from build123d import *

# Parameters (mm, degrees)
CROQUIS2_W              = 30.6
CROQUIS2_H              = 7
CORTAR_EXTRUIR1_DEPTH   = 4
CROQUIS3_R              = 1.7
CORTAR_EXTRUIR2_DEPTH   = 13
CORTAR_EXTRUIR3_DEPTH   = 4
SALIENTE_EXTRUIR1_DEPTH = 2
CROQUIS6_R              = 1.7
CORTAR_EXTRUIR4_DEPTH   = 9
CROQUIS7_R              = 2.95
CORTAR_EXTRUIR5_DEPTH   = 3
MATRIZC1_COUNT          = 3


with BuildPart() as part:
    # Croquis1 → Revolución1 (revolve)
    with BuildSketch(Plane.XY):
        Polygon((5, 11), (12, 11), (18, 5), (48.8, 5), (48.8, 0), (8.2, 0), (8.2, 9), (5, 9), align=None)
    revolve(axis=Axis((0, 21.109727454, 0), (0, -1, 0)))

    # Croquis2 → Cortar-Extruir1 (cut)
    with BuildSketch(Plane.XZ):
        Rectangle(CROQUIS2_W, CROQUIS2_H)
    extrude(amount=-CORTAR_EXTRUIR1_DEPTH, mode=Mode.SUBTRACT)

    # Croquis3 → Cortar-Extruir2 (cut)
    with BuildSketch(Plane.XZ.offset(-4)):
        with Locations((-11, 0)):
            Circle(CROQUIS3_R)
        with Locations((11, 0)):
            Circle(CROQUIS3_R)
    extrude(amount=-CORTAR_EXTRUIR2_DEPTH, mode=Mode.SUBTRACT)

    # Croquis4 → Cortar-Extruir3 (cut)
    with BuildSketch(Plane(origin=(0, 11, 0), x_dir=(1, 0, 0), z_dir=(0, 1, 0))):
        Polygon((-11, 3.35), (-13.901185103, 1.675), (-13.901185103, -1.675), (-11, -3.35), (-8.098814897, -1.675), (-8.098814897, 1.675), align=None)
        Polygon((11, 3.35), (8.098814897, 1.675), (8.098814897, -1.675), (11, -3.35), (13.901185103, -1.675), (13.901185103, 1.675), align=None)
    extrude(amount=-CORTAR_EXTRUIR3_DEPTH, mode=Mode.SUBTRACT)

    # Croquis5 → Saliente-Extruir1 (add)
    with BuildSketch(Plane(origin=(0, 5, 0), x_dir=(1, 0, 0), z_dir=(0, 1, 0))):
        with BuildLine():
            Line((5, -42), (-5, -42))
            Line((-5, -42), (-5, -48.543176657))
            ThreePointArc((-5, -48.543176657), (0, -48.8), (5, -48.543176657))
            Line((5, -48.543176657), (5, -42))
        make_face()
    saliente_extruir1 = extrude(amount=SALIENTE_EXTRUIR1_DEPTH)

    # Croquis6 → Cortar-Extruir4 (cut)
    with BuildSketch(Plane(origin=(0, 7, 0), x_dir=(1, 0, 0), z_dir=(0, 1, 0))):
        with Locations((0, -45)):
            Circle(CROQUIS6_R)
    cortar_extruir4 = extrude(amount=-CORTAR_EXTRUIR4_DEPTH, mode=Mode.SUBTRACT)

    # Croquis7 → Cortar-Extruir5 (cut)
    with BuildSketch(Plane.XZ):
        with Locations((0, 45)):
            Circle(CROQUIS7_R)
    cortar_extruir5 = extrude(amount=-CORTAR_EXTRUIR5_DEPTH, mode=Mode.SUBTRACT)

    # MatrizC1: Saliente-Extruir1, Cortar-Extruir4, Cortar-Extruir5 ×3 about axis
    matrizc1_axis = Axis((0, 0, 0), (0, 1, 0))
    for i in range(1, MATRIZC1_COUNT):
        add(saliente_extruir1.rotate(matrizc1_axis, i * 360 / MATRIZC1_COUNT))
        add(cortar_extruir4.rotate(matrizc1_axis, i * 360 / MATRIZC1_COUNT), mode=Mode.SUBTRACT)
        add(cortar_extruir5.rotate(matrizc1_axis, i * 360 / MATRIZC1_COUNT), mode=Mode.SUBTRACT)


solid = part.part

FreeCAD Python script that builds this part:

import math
import FreeCAD as App
import Part
import Sketcher
from FreeCAD import Vector
Q = App.Units.Quantity

doc = App.newDocument("Part")
body = doc.addObject("PartDesign::Body", "Body")

# Sketch on XY plane
sketch1 = doc.addObject("Sketcher::SketchObject", "Sketch")
body.addObject(sketch1)
sketch1.AttachmentSupport = (doc.XY_Plane, [""])
sketch1.MapMode = "FlatFace"
sketch1.addGeometry(Part.LineSegment(Vector(12, 11, 0), Vector(5, 11, 0)), False)
sketch1.addGeometry(Part.LineSegment(Vector(5, 11, 0), Vector(5, 9, 0)), False)
sketch1.addGeometry(Part.LineSegment(Vector(5, 9, 0), Vector(8.2, 9, 0)), False)
sketch1.addGeometry(Part.LineSegment(Vector(8.2, 9, 0), Vector(8.2, 0, 0)), False)
sketch1.addGeometry(Part.LineSegment(Vector(8.2, 0, 0), Vector(48.8, 0, 0)), False)
sketch1.addGeometry(Part.LineSegment(Vector(48.8, 0, 0), Vector(48.8, 5, 0)), False)
sketch1.addGeometry(Part.LineSegment(Vector(48.8, 5, 0), Vector(18, 5, 0)), False)
sketch1.addGeometry(Part.LineSegment(Vector(18, 5, 0), Vector(12, 11, 0)), False)
sketch1.addConstraint(Sketcher.Constraint("Coincident", 0, 2, 1, 1))
sketch1.addConstraint(Sketcher.Constraint("Coincident", 1, 2, 2, 1))
sketch1.addConstraint(Sketcher.Constraint("Coincident", 2, 2, 3, 1))
sketch1.addConstraint(Sketcher.Constraint("Coincident", 3, 2, 4, 1))
sketch1.addConstraint(Sketcher.Constraint("Coincident", 4, 2, 5, 1))
sketch1.addConstraint(Sketcher.Constraint("Coincident", 5, 2, 6, 1))
sketch1.addConstraint(Sketcher.Constraint("Coincident", 6, 2, 7, 1))
sketch1.addConstraint(Sketcher.Constraint("Coincident", 7, 2, 0, 1))
sketch1.addConstraint(Sketcher.Constraint("Horizontal", 0))
sketch1.addConstraint(Sketcher.Constraint("Vertical", 1))
sketch1.addConstraint(Sketcher.Constraint("Horizontal", 2))
sketch1.addConstraint(Sketcher.Constraint("Vertical", 3))
sketch1.addConstraint(Sketcher.Constraint("Horizontal", 4))
sketch1.addConstraint(Sketcher.Constraint("Vertical", 5))
sketch1.addConstraint(Sketcher.Constraint("Horizontal", 6))
sketch1.addConstraint(Sketcher.Constraint("PointOnObject", 3, 2, -1))
sketch1.addConstraint(Sketcher.Constraint("DistanceX", 0, 2, 0, 1, Q("7 mm")))
sketch1.addConstraint(Sketcher.Constraint("DistanceY", 1, 2, 1, 1, Q("2 mm")))
sketch1.addConstraint(Sketcher.Constraint("DistanceY", 3, 2, 3, 1, Q("9 mm")))
sketch1.addConstraint(Sketcher.Constraint("DistanceY", 5, 1, 5, 2, Q("5 mm")))
sketch1.addConstraint(Sketcher.Constraint("Angle", 7, Q("135 deg")))
sketch1.addConstraint(Sketcher.Constraint("DistanceX", 2, 1, 2, 2, Q("3.2 mm")))
sketch1.addConstraint(Sketcher.Constraint("DistanceX", 4, 1, 4, 2, Q("40.6 mm")))
sketch1.addConstraint(Sketcher.Constraint("DistanceX", -1, 1, 0, 2, Q("5 mm")))
revolution = doc.addObject("PartDesign::Revolution", "Revolution")
body.addObject(revolution)
revolution.Profile = sketch1
revolution.ReferenceAxis = (sketch1, ["V_Axis"])
revolution.Angle = 360

# Sketch on XZ plane
sketch2 = doc.addObject("Sketcher::SketchObject", "Sketch001")
body.addObject(sketch2)
sketch2.AttachmentSupport = (doc.XZ_Plane, [""])
sketch2.MapMode = "FlatFace"
sketch2.addGeometry(Part.LineSegment(Vector(-15.3, 3.5, 0), Vector(-15.3, -3.5, 0)), False)
sketch2.addGeometry(Part.LineSegment(Vector(-15.3, -3.5, 0), Vector(15.3, -3.5, 0)), False)
sketch2.addGeometry(Part.LineSegment(Vector(15.3, -3.5, 0), Vector(15.3, 3.5, 0)), False)
sketch2.addGeometry(Part.LineSegment(Vector(15.3, 3.5, 0), Vector(-15.3, 3.5, 0)), False)
sketch2.addConstraint(Sketcher.Constraint("Coincident", 0, 2, 1, 1))
sketch2.addConstraint(Sketcher.Constraint("Coincident", 1, 2, 2, 1))
sketch2.addConstraint(Sketcher.Constraint("Coincident", 2, 2, 3, 1))
sketch2.addConstraint(Sketcher.Constraint("Coincident", 3, 2, 0, 1))
sketch2.addConstraint(Sketcher.Constraint("Vertical", 0))
sketch2.addConstraint(Sketcher.Constraint("Horizontal", 1))
sketch2.addConstraint(Sketcher.Constraint("Vertical", 2))
sketch2.addConstraint(Sketcher.Constraint("Horizontal", 3))
sketch2.addConstraint(Sketcher.Constraint("Symmetric", 0, 2, 2, 2, -1, 1))
sketch2.addConstraint(Sketcher.Constraint("DistanceY", 0, 2, 0, 1, Q("7 mm")))
sketch2.addConstraint(Sketcher.Constraint("DistanceX", 1, 1, 1, 2, Q("30.6 mm")))
pocket1 = doc.addObject("PartDesign::Pocket", "Pocket")
body.addObject(pocket1)
pocket1.Profile = sketch2
pocket1.Length = 4

# Sketch on XZ plane
sketch3 = doc.addObject("Sketcher::SketchObject", "Sketch002")
body.addObject(sketch3)
sketch3.AttachmentSupport = (doc.XZ_Plane, [""])
sketch3.MapMode = "FlatFace"
sketch3.AttachmentOffset = App.Placement(Vector(0, 0, -4), App.Rotation())
sketch3.addGeometry(Part.Circle(Vector(-11, 0, 0), Vector(0, 0, 1), 1.7), False)
sketch3.addGeometry(Part.Circle(Vector(11, 0, 0), Vector(0, 0, 1), 1.7), False)
sketch3.addConstraint(Sketcher.Constraint("Equal", 0, 1))
sketch3.addConstraint(Sketcher.Constraint("Symmetric", 0, 3, 1, 3, -1, 1))
sketch3.addConstraint(Sketcher.Constraint("PointOnObject", 0, 3, -1))
sketch3.addConstraint(Sketcher.Constraint("Diameter", 0, Q("3.4 mm")))
sketch3.addConstraint(Sketcher.Constraint("DistanceX", 0, 3, -1, 1, Q("11 mm")))
pocket2 = doc.addObject("PartDesign::Pocket", "Pocket001")
body.addObject(pocket2)
pocket2.Profile = sketch3
pocket2.Length = 13

# Sketch on XZ plane
sketch4 = doc.addObject("Sketcher::SketchObject", "Sketch003")
body.addObject(sketch4)
sketch4.AttachmentSupport = (doc.XZ_Plane, [""])
sketch4.MapMode = "FlatFace"
sketch4.AttachmentOffset = App.Placement(Vector(0, 0, -11), App.Rotation())
sketch4.addGeometry(Part.LineSegment(Vector(-11, -3.35, 0), Vector(-13.901185, -1.675, 0)), False)
sketch4.addGeometry(Part.LineSegment(Vector(-13.901185, -1.675, 0), Vector(-13.901185, 1.675, 0)), False)
sketch4.addGeometry(Part.LineSegment(Vector(-13.901185, 1.675, 0), Vector(-11, 3.35, 0)), False)
sketch4.addGeometry(Part.LineSegment(Vector(-11, 3.35, 0), Vector(-8.098815, 1.675, 0)), False)
sketch4.addGeometry(Part.LineSegment(Vector(-8.098815, 1.675, 0), Vector(-8.098815, -1.675, 0)), False)
sketch4.addGeometry(Part.LineSegment(Vector(-8.098815, -1.675, 0), Vector(-11, -3.35, 0)), False)
sketch4.addGeometry(Part.LineSegment(Vector(11, -3.35, 0), Vector(8.098815, -1.675, 0)), False)
sketch4.addGeometry(Part.LineSegment(Vector(8.098815, -1.675, 0), Vector(8.098815, 1.675, 0)), False)
sketch4.addGeometry(Part.LineSegment(Vector(8.098815, 1.675, 0), Vector(11, 3.35, 0)), False)
sketch4.addGeometry(Part.LineSegment(Vector(11, 3.35, 0), Vector(13.901185, 1.675, 0)), False)
sketch4.addGeometry(Part.LineSegment(Vector(13.901185, 1.675, 0), Vector(13.901185, -1.675, 0)), False)
sketch4.addGeometry(Part.LineSegment(Vector(13.901185, -1.675, 0), Vector(11, -3.35, 0)), False)
sketch4.addConstraint(Sketcher.Constraint("Coincident", 0, 2, 1, 1))
sketch4.addConstraint(Sketcher.Constraint("Coincident", 1, 2, 2, 1))
sketch4.addConstraint(Sketcher.Constraint("Coincident", 2, 2, 3, 1))
sketch4.addConstraint(Sketcher.Constraint("Coincident", 3, 2, 4, 1))
sketch4.addConstraint(Sketcher.Constraint("Coincident", 4, 2, 5, 1))
sketch4.addConstraint(Sketcher.Constraint("Coincident", 5, 2, 0, 1))
sketch4.addConstraint(Sketcher.Constraint("Coincident", 6, 2, 7, 1))
sketch4.addConstraint(Sketcher.Constraint("Coincident", 7, 2, 8, 1))
sketch4.addConstraint(Sketcher.Constraint("Coincident", 8, 2, 9, 1))
sketch4.addConstraint(Sketcher.Constraint("Coincident", 9, 2, 10, 1))
sketch4.addConstraint(Sketcher.Constraint("Coincident", 10, 2, 11, 1))
sketch4.addConstraint(Sketcher.Constraint("Coincident", 11, 2, 6, 1))
sketch4.addConstraint(Sketcher.Constraint("Vertical", 1))
sketch4.addConstraint(Sketcher.Constraint("Vertical", 4))
sketch4.addConstraint(Sketcher.Constraint("Vertical", 7))
sketch4.addConstraint(Sketcher.Constraint("Vertical", 10))
sketch4.addConstraint(Sketcher.Constraint("Symmetric", 3, 2, 6, 2, -1, 1))
sketch4.addConstraint(Sketcher.Constraint("Symmetric", 5, 2, 8, 2, -1, 1))
sketch4.addConstraint(Sketcher.Constraint("Symmetric", 0, 2, 9, 2, -1, 1))
sketch4.addConstraint(Sketcher.Constraint("Symmetric", 2, 2, 11, 2, -1, 1))
sketch4.addConstraint(Sketcher.Constraint("Symmetric", 2, 2, 8, 2, -2))
sketch4.addConstraint(Sketcher.Constraint("Parallel", 0, 3))
sketch4.addConstraint(Sketcher.Constraint("Parallel", 2, 5))
sketch4.addConstraint(Sketcher.Constraint("Parallel", 5, 8))
sketch4.addConstraint(Sketcher.Constraint("Parallel", 8, 11))
sketch4.addConstraint(Sketcher.Constraint("Horizontal", 1, 2, 3, 2))
sketch4.addConstraint(Sketcher.Constraint("Horizontal", 0, 2, 4, 2))
sketch4.addConstraint(Sketcher.Constraint("Angle", 0, Q("150 deg")))
sketch4.addConstraint(Sketcher.Constraint("DistanceX", 2, 2, -1, 1, Q("11 mm")))
sketch4.addConstraint(Sketcher.Constraint("DistanceY", 1, 1, 1, 2, Q("3.35 mm")))
sketch4.addConstraint(Sketcher.Constraint("DistanceY", 5, 2, 2, 2, Q("6.7 mm")))
pocket3 = doc.addObject("PartDesign::Pocket", "Pocket002")
body.addObject(pocket3)
pocket3.Profile = sketch4
pocket3.Length = 4
pocket3.Reversed = True

# Sketch on XZ plane
sketch5 = doc.addObject("Sketcher::SketchObject", "Sketch004")
body.addObject(sketch5)
sketch5.AttachmentSupport = (doc.XZ_Plane, [""])
sketch5.MapMode = "FlatFace"
sketch5.AttachmentOffset = App.Placement(Vector(0, 0, -5), App.Rotation())
sketch5.addGeometry(Part.LineSegment(Vector(5, 42, 0), Vector(-5, 42, 0)), False)
sketch5.addGeometry(Part.LineSegment(Vector(-5, 42, 0), Vector(-5, 48.543177, 0)), False)
sketch5.addGeometry(Part.ArcOfCircle(Part.Circle(Vector(0, 0, 0), Vector(0, 0, 1), 48.8), math.radians(84.119211), math.radians(95.880789)), False)
sketch5.addGeometry(Part.LineSegment(Vector(5, 48.543177, 0), Vector(5, 42, 0)), False)
sketch5.addConstraint(Sketcher.Constraint("Coincident", 0, 2, 1, 1))
sketch5.addConstraint(Sketcher.Constraint("Coincident", 1, 2, 2, 2))
sketch5.addConstraint(Sketcher.Constraint("Coincident", 2, 1, 3, 1))
sketch5.addConstraint(Sketcher.Constraint("Coincident", 3, 2, 0, 1))
sketch5.addConstraint(Sketcher.Constraint("Horizontal", 0))
sketch5.addConstraint(Sketcher.Constraint("Vertical", 1))
sketch5.addConstraint(Sketcher.Constraint("Vertical", 3))
sketch5.addConstraint(Sketcher.Constraint("Coincident", 2, 3, -1, 1))
sketch5.addConstraint(Sketcher.Constraint("Horizontal", 1, 2, 2, 1))
sketch5.addConstraint(Sketcher.Constraint("Radius", 2, Q("48.8 mm")))
sketch5.addConstraint(Sketcher.Constraint("DistanceX", 0, 2, 0, 1, Q("10 mm")))
sketch5.addConstraint(Sketcher.Constraint("DistanceY", -1, 1, 0, 2, Q("42 mm")))
pad1 = doc.addObject("PartDesign::Pad", "Pad")
body.addObject(pad1)
pad1.Profile = sketch5
pad1.Length = 2
pad1.Reversed = True

# Sketch on XZ plane
sketch6 = doc.addObject("Sketcher::SketchObject", "Sketch005")
body.addObject(sketch6)
sketch6.AttachmentSupport = (doc.XZ_Plane, [""])
sketch6.MapMode = "FlatFace"
sketch6.AttachmentOffset = App.Placement(Vector(0, 0, -7), App.Rotation())
sketch6.addGeometry(Part.Circle(Vector(0, 45, 0), Vector(0, 0, 1), 1.7), False)
sketch6.addConstraint(Sketcher.Constraint("PointOnObject", 0, 3, -2))
sketch6.addConstraint(Sketcher.Constraint("Diameter", 0, Q("3.4 mm")))
sketch6.addConstraint(Sketcher.Constraint("DistanceY", -1, 1, 0, 3, Q("45 mm")))
pocket4 = doc.addObject("PartDesign::Pocket", "Pocket003")
body.addObject(pocket4)
pocket4.Profile = sketch6
pocket4.Length = 9
pocket4.Reversed = True

# Sketch on XZ plane
sketch7 = doc.addObject("Sketcher::SketchObject", "Sketch006")
body.addObject(sketch7)
sketch7.AttachmentSupport = (doc.XZ_Plane, [""])
sketch7.MapMode = "FlatFace"
sketch7.addGeometry(Part.Circle(Vector(0, 45, 0), Vector(0, 0, 1), 2.95), False)
sketch7.addConstraint(Sketcher.Constraint("PointOnObject", 0, 3, -2))
sketch7.addConstraint(Sketcher.Constraint("Diameter", 0, Q("5.9 mm")))
sketch7.addConstraint(Sketcher.Constraint("DistanceY", -1, 1, 0, 3, Q("45 mm")))
pocket5 = doc.addObject("PartDesign::Pocket", "Pocket004")
body.addObject(pocket5)
pocket5.Profile = sketch7
pocket5.Length = 3
doc.recompute()

polarpattern = doc.addObject("PartDesign::PolarPattern", "PolarPattern")
body.addObject(polarpattern)
polarpattern.Originals = [pad1, pocket4, pocket5]
polarpattern.Axis = (doc.Y_Axis, [""])
polarpattern.Angle = 360
polarpattern.Occurrences = 3
body.Tip = polarpattern

doc.recompute()
